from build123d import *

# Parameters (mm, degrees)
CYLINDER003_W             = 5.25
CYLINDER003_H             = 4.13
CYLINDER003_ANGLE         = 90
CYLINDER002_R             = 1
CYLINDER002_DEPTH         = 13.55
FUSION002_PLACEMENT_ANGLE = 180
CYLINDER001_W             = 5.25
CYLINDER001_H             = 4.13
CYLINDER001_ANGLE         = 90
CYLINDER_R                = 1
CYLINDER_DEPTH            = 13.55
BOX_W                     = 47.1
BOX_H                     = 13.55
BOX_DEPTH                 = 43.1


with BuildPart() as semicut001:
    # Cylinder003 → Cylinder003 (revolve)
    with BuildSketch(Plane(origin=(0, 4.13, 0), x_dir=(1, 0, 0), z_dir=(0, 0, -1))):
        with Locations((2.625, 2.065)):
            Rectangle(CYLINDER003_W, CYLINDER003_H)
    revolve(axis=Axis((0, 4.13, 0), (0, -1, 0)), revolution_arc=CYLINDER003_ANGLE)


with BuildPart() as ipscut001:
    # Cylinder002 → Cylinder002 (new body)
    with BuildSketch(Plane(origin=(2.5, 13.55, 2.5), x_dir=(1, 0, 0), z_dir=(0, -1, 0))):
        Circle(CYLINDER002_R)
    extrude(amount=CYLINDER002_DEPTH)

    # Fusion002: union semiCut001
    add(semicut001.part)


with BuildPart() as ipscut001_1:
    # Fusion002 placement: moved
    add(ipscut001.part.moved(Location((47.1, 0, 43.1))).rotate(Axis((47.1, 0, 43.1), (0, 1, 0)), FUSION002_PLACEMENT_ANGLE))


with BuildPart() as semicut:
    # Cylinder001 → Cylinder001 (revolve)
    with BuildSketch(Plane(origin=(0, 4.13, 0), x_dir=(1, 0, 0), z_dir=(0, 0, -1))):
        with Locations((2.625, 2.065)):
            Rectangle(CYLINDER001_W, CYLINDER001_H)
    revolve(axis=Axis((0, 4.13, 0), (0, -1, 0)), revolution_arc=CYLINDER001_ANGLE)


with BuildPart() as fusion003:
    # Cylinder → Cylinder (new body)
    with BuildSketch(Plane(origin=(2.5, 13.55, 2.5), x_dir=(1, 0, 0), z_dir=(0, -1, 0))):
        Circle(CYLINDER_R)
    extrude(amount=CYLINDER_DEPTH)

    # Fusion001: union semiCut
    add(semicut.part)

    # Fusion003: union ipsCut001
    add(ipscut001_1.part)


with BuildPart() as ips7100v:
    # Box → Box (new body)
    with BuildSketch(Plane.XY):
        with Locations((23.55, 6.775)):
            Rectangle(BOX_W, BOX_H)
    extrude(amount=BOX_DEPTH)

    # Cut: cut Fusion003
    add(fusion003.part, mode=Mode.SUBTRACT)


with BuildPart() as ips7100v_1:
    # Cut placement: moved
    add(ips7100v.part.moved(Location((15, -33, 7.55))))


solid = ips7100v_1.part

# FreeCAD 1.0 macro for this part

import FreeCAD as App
import Part
import Sketcher

V = App.Vector

doc = App.newDocument("Part")
body = doc.addObject("PartDesign::Body", "Body")

# Sketch on XY plane
sketch1 = body.newObject("Sketcher::SketchObject", "Sketch")
sketch1.AttachmentSupport = (doc.getObject("XY_Plane"), [""])
sketch1.MapMode = "FlatFace"
sketch1.addGeometry(Part.LineSegment(V(0, 0, 0), V(0, 4.1, 0)), False)
sketch1.addGeometry(Part.LineSegment(V(0, 4.1, 0), V(5.2, 4.1, 0)), False)
sketch1.addGeometry(Part.LineSegment(V(5.2, 4.1, 0), V(5.2, 0, 0)), False)
sketch1.addGeometry(Part.LineSegment(V(5.2, 0, 0), V(0, 0, 0)), False)
sketch1.addConstraint(Sketcher.Constraint("Coincident", 0, 2, 1, 1))
sketch1.addConstraint(Sketcher.Constraint("Coincident", 1, 2, 2, 1))
sketch1.addConstraint(Sketcher.Constraint("Coincident", 2, 2, 3, 1))
sketch1.addConstraint(Sketcher.Constraint("Coincident", 3, 2, 0, 1))
sketch1.addConstraint(Sketcher.Constraint("Vertical", 0))
sketch1.addConstraint(Sketcher.Constraint("Horizontal", 1))
sketch1.addConstraint(Sketcher.Constraint("Vertical", 2))
sketch1.addConstraint(Sketcher.Constraint("Horizontal", 3))
sketch1.addConstraint(Sketcher.Constraint("Coincident", 3, 2, -1, 1))
sketch1.addConstraint(Sketcher.Constraint("DistanceX", 1, 1, 1, 2, 5.25))
sketch1.addConstraint(Sketcher.Constraint("DistanceY", 0, 1, 0, 2, 4.13))
revolution = body.newObject("PartDesign::Revolution", "Revolution")
revolution.Profile = sketch1
revolution.ReferenceAxis = (sketch1, ["V_Axis"])
revolution.Angle = 90
revolution.Reversed = True
body2 = doc.addObject("PartDesign::Body", "Body001")

# Sketch on XZ plane
sketch2 = body2.newObject("Sketcher::SketchObject", "Sketch001")
sketch2.AttachmentSupport = (doc.getObject("XZ_Plane001"), [""])
sketch2.MapMode = "FlatFace"
sketch2.AttachmentOffset = App.Placement(V(0, 0, -13.55), App.Rotation())
sketch2.addGeometry(Part.Circle(V(2.5, 2.5, 0), V(0, 0, 1), 1), False)
sketch2.addConstraint(Sketcher.Constraint("Diameter", 0, 2.0))
sketch2.addConstraint(Sketcher.Constraint("DistanceX", -1, 1, 0, 3, 2.5))
sketch2.addConstraint(Sketcher.Constraint("DistanceY", -1, 1, 0, 3, 2.5))
pad1 = body2.newObject("PartDesign::Pad", "Pad")
pad1.Profile = sketch2
pad1.Length = 13.55
doc.recompute()

boolean = body2.newObject("PartDesign::Boolean", "Boolean")
boolean.Type = "Fuse"
boolean.addObjects([body])
body3 = doc.addObject("PartDesign::Body", "Body002")
doc.recompute()

body2.Placement = App.Placement(V(47.1, 0, 43.1), App.Rotation(V(0, 1, 0), 180))
boolean2 = body3.newObject("PartDesign::Boolean", "Boolean001")
boolean2.Type = "Fuse"
boolean2.addObjects([body2])
body4 = doc.addObject("PartDesign::Body", "Body003")

# Sketch on XY plane
sketch3 = body4.newObject("Sketcher::SketchObject", "Sketch002")
sketch3.AttachmentSupport = (doc.getObject("XY_Plane003"), [""])
sketch3.MapMode = "FlatFace"
sketch3.addGeometry(Part.LineSegment(V(0, 0, 0), V(0, 4.1, 0)), False)
sketch3.addGeometry(Part.LineSegment(V(0, 4.1, 0), V(5.2, 4.1, 0)), False)
sketch3.addGeometry(Part.LineSegment(V(5.2, 4.1, 0), V(5.2, 0, 0)), False)
sketch3.addGeometry(Part.LineSegment(V(5.2, 0, 0), V(0, 0, 0)), False)
sketch3.addConstraint(Sketcher.Constraint("Coincident", 0, 2, 1, 1))
sketch3.addConstraint(Sketcher.Constraint("Coincident", 1, 2, 2, 1))
sketch3.addConstraint(Sketcher.Constraint("Coincident", 2, 2, 3, 1))
sketch3.addConstraint(Sketcher.Constraint("Coincident", 3, 2, 0, 1))
sketch3.addConstraint(Sketcher.Constraint("Vertical", 0))
sketch3.addConstraint(Sketcher.Constraint("Horizontal", 1))
sketch3.addConstraint(Sketcher.Constraint("Vertical", 2))
sketch3.addConstraint(Sketcher.Constraint("Horizontal", 3))
sketch3.addConstraint(Sketcher.Constraint("Coincident", 3, 2, -1, 1))
sketch3.addConstraint(Sketcher.Constraint("DistanceX", 1, 1, 1, 2, 5.25))
sketch3.addConstraint(Sketcher.Constraint("DistanceY", 0, 1, 0, 2, 4.13))
revolution2 = body4.newObject("PartDesign::Revolution", "Revolution001")
revolution2.Profile = sketch3
revolution2.ReferenceAxis = (sketch3, ["V_Axis"])
revolution2.Angle = 90
revolution2.Reversed = True
body5 = doc.addObject("PartDesign::Body", "Body004")
body5.AllowCompound = True

# Sketch on XZ plane
sketch4 = body5.newObject("Sketcher::SketchObject", "Sketch003")
sketch4.AttachmentSupport = (doc.getObject("XZ_Plane004"), [""])
sketch4.MapMode = "FlatFace"
sketch4.AttachmentOffset = App.Placement(V(0, 0, -13.55), App.Rotation())
sketch4.addGeometry(Part.Circle(V(2.5, 2.5, 0), V(0, 0, 1), 1), False)
sketch4.addConstraint(Sketcher.Constraint("Diameter", 0, 2.0))
sketch4.addConstraint(Sketcher.Constraint("DistanceX", -1, 1, 0, 3, 2.5))
sketch4.addConstraint(Sketcher.Constraint("DistanceY", -1, 1, 0, 3, 2.5))
pad2 = body5.newObject("PartDesign::Pad", "Pad001")
pad2.Profile = sketch4
pad2.Length = 13.55
doc.recompute()

boolean3 = body5.newObject("PartDesign::Boolean", "Boolean002")
boolean3.Type = "Fuse"
boolean3.addObjects([body4])
doc.recompute()

boolean4 = body5.newObject("PartDesign::Boolean", "Boolean003")
boolean4.Type = "Fuse"
boolean4.addObjects([body3])
body6 = doc.addObject("PartDesign::Body", "Body005")

# Sketch on XY plane
sketch5 = body6.newObject("Sketcher::SketchObject", "Sketch004")
sketch5.AttachmentSupport = (doc.getObject("XY_Plane005"), [""])
sketch5.MapMode = "FlatFace"
sketch5.addGeometry(Part.LineSegment(V(0, 14, 0), V(0, 0, 0)), False)
sketch5.addGeometry(Part.LineSegment(V(0, 0, 0), V(47, 0, 0)), False)
sketch5.addGeometry(Part.LineSegment(V(47, 0, 0), V(47, 14, 0)), False)
sketch5.addGeometry(Part.LineSegment(V(47, 14, 0), V(0, 14, 0)), False)
sketch5.addConstraint(Sketcher.Constraint("Coincident", 0, 2, 1, 1))
sketch5.addConstraint(Sketcher.Constraint("Coincident", 1, 2, 2, 1))
sketch5.addConstraint(Sketcher.Constraint("Coincident", 2, 2, 3, 1))
sketch5.addConstraint(Sketcher.Constraint("Coincident", 3, 2, 0, 1))
sketch5.addConstraint(Sketcher.Constraint("Vertical", 0))
sketch5.addConstraint(Sketcher.Constraint("Horizontal", 1))
sketch5.addConstraint(Sketcher.Constraint("Vertical", 2))
sketch5.addConstraint(Sketcher.Constraint("Horizontal", 3))
sketch5.addConstraint(Sketcher.Constraint("Coincident", 0, 2, -1, 1))
sketch5.addConstraint(Sketcher.Constraint("DistanceX", 1, 1, 1, 2, 47.1))
sketch5.addConstraint(Sketcher.Constraint("DistanceY", 0, 2, 0, 1, 13.55))
pad3 = body6.newObject("PartDesign::Pad", "Pad002")
pad3.Profile = sketch5
pad3.Length = 43.1
doc.recompute()

boolean5 = body6.newObject("PartDesign::Boolean", "Boolean004")
boolean5.Type = "Cut"
boolean5.addObjects([body5])
body7 = doc.addObject("PartDesign::Body", "Body006")
doc.recompute()

body6.Placement = App.Placement(V(15, -33, 7.55), App.Rotation(V(0, 0, 1), 0))
boolean6 = body7.newObject("PartDesign::Boolean", "Boolean005")
boolean6.Type = "Fuse"
boolean6.addObjects([body6])

doc.recompute()
